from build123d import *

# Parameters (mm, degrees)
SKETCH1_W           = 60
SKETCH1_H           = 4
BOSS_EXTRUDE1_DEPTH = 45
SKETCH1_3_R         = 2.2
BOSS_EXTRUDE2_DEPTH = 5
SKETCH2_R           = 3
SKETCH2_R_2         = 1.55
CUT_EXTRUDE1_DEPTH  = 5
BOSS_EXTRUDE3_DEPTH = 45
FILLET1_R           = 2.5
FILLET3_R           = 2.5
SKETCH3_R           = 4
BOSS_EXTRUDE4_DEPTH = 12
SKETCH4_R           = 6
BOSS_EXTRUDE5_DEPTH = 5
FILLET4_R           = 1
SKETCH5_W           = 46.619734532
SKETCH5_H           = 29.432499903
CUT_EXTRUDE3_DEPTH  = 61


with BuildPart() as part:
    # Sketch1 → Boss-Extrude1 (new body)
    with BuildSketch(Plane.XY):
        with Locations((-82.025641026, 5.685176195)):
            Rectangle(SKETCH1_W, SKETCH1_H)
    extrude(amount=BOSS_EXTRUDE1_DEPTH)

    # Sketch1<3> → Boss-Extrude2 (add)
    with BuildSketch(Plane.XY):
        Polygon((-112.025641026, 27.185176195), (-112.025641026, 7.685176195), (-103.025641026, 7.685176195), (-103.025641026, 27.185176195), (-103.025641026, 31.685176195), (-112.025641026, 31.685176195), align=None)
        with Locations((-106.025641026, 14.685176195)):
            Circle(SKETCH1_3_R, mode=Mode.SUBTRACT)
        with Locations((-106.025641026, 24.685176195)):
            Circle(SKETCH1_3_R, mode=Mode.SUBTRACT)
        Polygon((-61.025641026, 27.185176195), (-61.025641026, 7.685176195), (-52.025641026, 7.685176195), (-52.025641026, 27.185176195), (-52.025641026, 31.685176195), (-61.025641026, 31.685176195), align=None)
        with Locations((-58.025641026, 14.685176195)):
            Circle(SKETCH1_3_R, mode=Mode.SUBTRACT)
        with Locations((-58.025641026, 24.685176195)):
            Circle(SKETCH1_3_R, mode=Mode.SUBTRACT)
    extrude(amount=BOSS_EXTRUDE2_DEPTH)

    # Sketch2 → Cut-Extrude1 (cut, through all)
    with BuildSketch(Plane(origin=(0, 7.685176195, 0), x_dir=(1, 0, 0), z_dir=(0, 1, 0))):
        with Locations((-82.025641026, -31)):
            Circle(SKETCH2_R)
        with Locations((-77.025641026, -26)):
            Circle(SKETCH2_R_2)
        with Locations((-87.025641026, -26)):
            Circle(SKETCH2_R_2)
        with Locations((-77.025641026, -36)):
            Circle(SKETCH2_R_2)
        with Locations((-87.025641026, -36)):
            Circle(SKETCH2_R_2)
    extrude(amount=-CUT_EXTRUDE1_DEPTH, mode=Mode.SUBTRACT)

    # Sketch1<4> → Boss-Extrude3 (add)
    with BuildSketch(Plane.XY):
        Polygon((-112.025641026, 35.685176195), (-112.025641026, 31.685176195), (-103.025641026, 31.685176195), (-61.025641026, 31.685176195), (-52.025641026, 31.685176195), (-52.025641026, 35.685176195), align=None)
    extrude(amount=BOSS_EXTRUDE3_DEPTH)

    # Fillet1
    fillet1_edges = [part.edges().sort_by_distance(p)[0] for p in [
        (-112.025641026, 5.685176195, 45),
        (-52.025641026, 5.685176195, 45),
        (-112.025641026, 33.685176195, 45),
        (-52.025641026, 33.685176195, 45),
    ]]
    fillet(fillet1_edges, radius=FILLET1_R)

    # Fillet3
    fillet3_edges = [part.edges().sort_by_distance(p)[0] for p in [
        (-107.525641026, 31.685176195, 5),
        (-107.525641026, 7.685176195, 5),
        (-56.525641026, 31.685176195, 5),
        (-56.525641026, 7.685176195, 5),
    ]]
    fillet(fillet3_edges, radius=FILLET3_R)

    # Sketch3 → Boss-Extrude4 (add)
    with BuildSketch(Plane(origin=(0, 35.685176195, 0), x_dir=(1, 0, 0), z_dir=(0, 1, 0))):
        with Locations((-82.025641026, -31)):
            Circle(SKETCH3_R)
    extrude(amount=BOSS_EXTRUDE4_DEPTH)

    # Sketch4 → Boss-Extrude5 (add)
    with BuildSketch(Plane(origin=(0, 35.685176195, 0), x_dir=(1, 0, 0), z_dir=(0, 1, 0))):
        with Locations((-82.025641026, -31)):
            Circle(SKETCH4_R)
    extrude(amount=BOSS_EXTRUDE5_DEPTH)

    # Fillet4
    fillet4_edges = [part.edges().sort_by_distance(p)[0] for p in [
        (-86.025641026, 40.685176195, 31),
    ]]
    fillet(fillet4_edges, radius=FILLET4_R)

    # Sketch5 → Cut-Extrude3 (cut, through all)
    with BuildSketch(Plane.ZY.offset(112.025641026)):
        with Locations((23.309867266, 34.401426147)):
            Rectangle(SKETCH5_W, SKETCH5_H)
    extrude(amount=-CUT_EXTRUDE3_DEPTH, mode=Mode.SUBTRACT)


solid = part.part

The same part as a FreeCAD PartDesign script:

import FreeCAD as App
import Part
import Sketcher
from FreeCAD import Vector


def edges_at(feature, points):
    """Names of the edges that pass closest to the given points."""
    edges = feature.Shape.Edges
    near = lambda p: min(range(len(edges)), key=lambda i: edges[i].distToShape(Part.Vertex(*p))[0])
    return sorted({f"Edge{near(p) + 1}" for p in points})


def add_polygon(sketch, points):
    """Adds a closed chain of lines whose ends are joined by coincident constraints."""
    first, n = sketch.GeometryCount, len(points)
    for a, b in zip(points, points[1:] + points[:1]):
        sketch.addGeometry(Part.LineSegment(App.Vector(*a, 0), App.Vector(*b, 0)), False)
    for i in range(n):
        sketch.addConstraint(Sketcher.Constraint("Coincident", first + i, 2, first + (i + 1) % n, 1))

doc = App.newDocument("Part")
body = doc.addObject("PartDesign::Body", "Body")

# Sketch on XY plane
sketch1 = doc.addObject("Sketcher::SketchObject", "Sketch")
body.addObject(sketch1)
sketch1.AttachmentSupport = (doc.XY_Plane, [""])
sketch1.MapMode = "FlatFace"
add_polygon(sketch1, [(-112.025641, 7.685176), (-112.025641, 3.685176), (-52.025641, 3.685176), (-52.025641, 7.685176)])  # lines 0-3
sketch1.addConstraint([
    Sketcher.Constraint("Vertical", 0),
    Sketcher.Constraint("Horizontal", 1),
    Sketcher.Constraint("Vertical", 2),
    Sketcher.Constraint("Horizontal", 3),
    Sketcher.Constraint("DistanceX", 1, 1, 1, 2, 60.0),
    Sketcher.Constraint("DistanceY", 0, 2, 0, 1, 4.0),
    Sketcher.Constraint("DistanceX", 0, 2, -1, 1, 112.025641),
    Sketcher.Constraint("DistanceY", -1, 1, 0, 2, 3.685176),
])
pad1 = doc.addObject("PartDesign::Pad", "Pad")
body.addObject(pad1)
pad1.Profile = sketch1
pad1.Length = 45

# Sketch on XY plane
sketch2 = doc.addObject("Sketcher::SketchObject", "Sketch001")
body.addObject(sketch2)
sketch2.AttachmentSupport = (doc.XY_Plane, [""])
sketch2.MapMode = "FlatFace"
add_polygon(sketch2, [(-112.025641, 7.685176), (-103.025641, 7.685176), (-103.025641, 31.685176), (-112.025641, 31.685176)])  # lines 0-3
sketch2.addGeometry(Part.Circle(Vector(-106.025641, 14.685176, 0), Vector(0, 0, 1), 2.2), False)  # 4
sketch2.addGeometry(Part.Circle(Vector(-106.025641, 24.685176, 0), Vector(0, 0, 1), 2.2), False)  # 5
add_polygon(sketch2, [(-61.025641, 7.685176), (-52.025641, 7.685176), (-52.025641, 31.685176), (-61.025641, 31.685176)])  # lines 6-9
sketch2.addGeometry(Part.Circle(Vector(-58.025641, 14.685176, 0), Vector(0, 0, 1), 2.2), False)  # 10
sketch2.addGeometry(Part.Circle(Vector(-58.025641, 24.685176, 0), Vector(0, 0, 1), 2.2), False)  # 11
sketch2.addConstraint([
    Sketcher.Constraint("Horizontal", 0),
    Sketcher.Constraint("Vertical", 1),
    Sketcher.Constraint("Horizontal", 2),
    Sketcher.Constraint("Vertical", 3),
    Sketcher.Constraint("Horizontal", 6),
    Sketcher.Constraint("Vertical", 7),
    Sketcher.Constraint("Horizontal", 8),
    Sketcher.Constraint("Vertical", 9),
    Sketcher.Constraint("Equal", 4, 5),
    Sketcher.Constraint("Equal", 5, 10),
    Sketcher.Constraint("Equal", 10, 11),
    Sketcher.Constraint("Horizontal", 4, 3, 10, 3),
    Sketcher.Constraint("Horizontal", 5, 3, 11, 3),
    Sketcher.Constraint("Horizontal", 3, 2, 6, 2),
    Sketcher.Constraint("Horizontal", 2, 2, 7, 2),
    Sketcher.Constraint("Vertical", 4, 3, 5, 3),
    Sketcher.Constraint("Vertical", 10, 3, 11, 3),
    Sketcher.Constraint("Equal", 2, 6),
    Sketcher.Constraint("Diameter", 4, 4.4),
    Sketcher.Constraint("DistanceX", 0, 1, 0, 2, 9.0),
    Sketcher.Constraint("DistanceY", 1, 1, 1, 2, 24.0),
    Sketcher.Constraint("DistanceY", 4, 3, 5, 3, 10.0),
    Sketcher.Constraint("DistanceX", 4, 3, 10, 3, 48.0),
    Sketcher.Constraint("DistanceX", 4, 3, 0, 2, 3.0),
    Sketcher.Constraint("DistanceY", 0, 2, 4, 3, 7.0),
    Sketcher.Constraint("DistanceX", 10, 3, 6, 2, 6.0),
    Sketcher.Constraint("DistanceX", 4, 3, -1, 1, 106.025641),
    Sketcher.Constraint("DistanceY", -1, 1, 4, 3, 14.685176),
])
pad2 = doc.addObject("PartDesign::Pad", "Pad001")
body.addObject(pad2)
pad2.Profile = sketch2
pad2.Length = 5

# Sketch on XZ plane
sketch3 = doc.addObject("Sketcher::SketchObject", "Sketch002")
body.addObject(sketch3)
sketch3.AttachmentSupport = (doc.XZ_Plane, [""])
sketch3.MapMode = "FlatFace"
sketch3.AttachmentOffset = App.Placement(Vector(0, 0, -7.685176), App.Rotation())
sketch3.addGeometry([
    Part.Circle(Vector(-82.025641, 31, 0), Vector(0, 0, 1), 3),  # 0
    Part.Circle(Vector(-77.025641, 26, 0), Vector(0, 0, 1), 1.55),  # 1
    Part.Circle(Vector(-87.025641, 26, 0), Vector(0, 0, 1), 1.55),  # 2
    Part.Circle(Vector(-77.025641, 36, 0), Vector(0, 0, 1), 1.55),  # 3
    Part.Circle(Vector(-87.025641, 36, 0), Vector(0, 0, 1), 1.55),  # 4
], False)
sketch3.addConstraint([
    Sketcher.Constraint("Equal", 1, 2),
    Sketcher.Constraint("Equal", 2, 3),
    Sketcher.Constraint("Equal", 3, 4),
    Sketcher.Constraint("Horizontal", 1, 3, 2, 3),
    Sketcher.Constraint("Horizontal", 3, 3, 4, 3),
    Sketcher.Constraint("Vertical", 1, 3, 3, 3),
    Sketcher.Constraint("Vertical", 2, 3, 4, 3),
    Sketcher.Constraint("Diameter", 0, 6.0),
    Sketcher.Constraint("Diameter", 1, 3.1),
    Sketcher.Constraint("DistanceY", -1, 1, 0, 3, 31.0),
    Sketcher.Constraint("DistanceY", -1, 1, 1, 3, 26.0),
    Sketcher.Constraint("DistanceY", -1, 1, 3, 3, 36.0),
    Sketcher.Constraint("DistanceX", 0, 3, 1, 3, 5.0),
    Sketcher.Constraint("DistanceX", 2, 3, 0, 3, 5.0),
    Sketcher.Constraint("DistanceX", 0, 3, -1, 1, 82.025641),
])
pocket1 = doc.addObject("PartDesign::Pocket", "Pocket")
body.addObject(pocket1)
pocket1.Profile = sketch3
pocket1.Type = "ThroughAll"
pocket1.Reversed = True

# Sketch on XY plane
sketch4 = doc.addObject("Sketcher::SketchObject", "Sketch003")
body.addObject(sketch4)
sketch4.AttachmentSupport = (doc.XY_Plane, [""])
sketch4.MapMode = "FlatFace"
add_polygon(sketch4, [(-112.025641, 35.685176), (-112.025641, 31.685176), (-52.025641, 31.685176), (-52.025641, 35.685176)])  # lines 0-3
sketch4.addConstraint([
    Sketcher.Constraint("Vertical", 0),
    Sketcher.Constraint("Horizontal", 1),
    Sketcher.Constraint("Vertical", 2),
    Sketcher.Constraint("Horizontal", 3),
    Sketcher.Constraint("DistanceX", 1, 1, 1, 2, 60.0),
    Sketcher.Constraint("DistanceY", 0, 2, 0, 1, 4.0),
    Sketcher.Constraint("DistanceX", 0, 2, -1, 1, 112.025641),
    Sketcher.Constraint("DistanceY", -1, 1, 0, 2, 31.685176),
])
pad3 = doc.addObject("PartDesign::Pad", "Pad002")
body.addObject(pad3)
pad3.Profile = sketch4
pad3.Length = 45
doc.recompute()

fillet = doc.addObject("PartDesign::Fillet", "Fillet")
body.addObject(fillet)
fillet.Base = (pad3, edges_at(pad3, [
    (-112.026, 5.685, 45),
    (-52.026, 5.685, 45),
    (-112.026, 33.685, 45),
    (-52.026, 33.685, 45),
]))
fillet.Radius = 2.5
doc.recompute()

fillet2 = doc.addObject("PartDesign::Fillet", "Fillet001")
body.addObject(fillet2)
fillet2.Base = (fillet, edges_at(fillet, [
    (-107.526, 31.685, 5),
    (-107.526, 7.685, 5),
    (-56.526, 31.685, 5),
    (-56.526, 7.685, 5),
]))
fillet2.Radius = 2.5

# Sketch on XZ plane
sketch5 = doc.addObject("Sketcher::SketchObject", "Sketch004")
body.addObject(sketch5)
sketch5.AttachmentSupport = (doc.XZ_Plane, [""])
sketch5.MapMode = "FlatFace"
sketch5.AttachmentOffset = App.Placement(Vector(0, 0, -35.685176), App.Rotation())
sketch5.addGeometry(Part.Circle(Vector(-82.025641, 31, 0), Vector(0, 0, 1), 4), False)
sketch5.addConstraint([
    Sketcher.Constraint("Diameter", 0, 8.0),
    Sketcher.Constraint("DistanceY", -1, 1, 0, 3, 31.0),
    Sketcher.Constraint("DistanceX", 0, 3, -1, 1, 82.025641),
])
pad4 = doc.addObject("PartDesign::Pad", "Pad003")
body.addObject(pad4)
pad4.Profile = sketch5
pad4.Length = 12
pad4.Reversed = True

# Sketch on XZ plane
sketch6 = doc.addObject("Sketcher::SketchObject", "Sketch005")
body.addObject(sketch6)
sketch6.AttachmentSupport = (doc.XZ_Plane, [""])
sketch6.MapMode = "FlatFace"
sketch6.AttachmentOffset = App.Placement(Vector(0, 0, -35.685176), App.Rotation())
sketch6.addGeometry(Part.Circle(Vector(-82.025641, 31, 0), Vector(0, 0, 1), 6), False)
sketch6.addConstraint([
    Sketcher.Constraint("Diameter", 0, 12.0),
    Sketcher.Constraint("DistanceY", -1, 1, 0, 3, 31.0),
    Sketcher.Constraint("DistanceX", 0, 3, -1, 1, 82.025641),
])
pad5 = doc.addObject("PartDesign::Pad", "Pad004")
body.addObject(pad5)
pad5.Profile = sketch6
pad5.Length = 5
pad5.Reversed = True
doc.recompute()

fillet3 = doc.addObject("PartDesign::Fillet", "Fillet002")
body.addObject(fillet3)
fillet3.Base = (pad5, edges_at(pad5, [(-86.026, 40.685, 31)]))
fillet3.Radius = 1

# Sketch on YZ plane
sketch7 = doc.addObject("Sketcher::SketchObject", "Sketch006")
body.addObject(sketch7)
sketch7.AttachmentSupport = (doc.YZ_Plane, [""])
sketch7.MapMode = "FlatFace"
sketch7.AttachmentOffset = App.Placement(Vector(0, 0, -112.025641), App.Rotation())
add_polygon(sketch7, [(49.117676, 0), (19.685176, 0), (19.685176, 46.619735), (49.117676, 46.619735)])  # lines 0-3
sketch7.addConstraint([
    Sketcher.Constraint("Horizontal", 0),
    Sketcher.Constraint("Vertical", 1),
    Sketcher.Constraint("Horizontal", 2),
    Sketcher.Constraint("Vertical", 3),
    Sketcher.Constraint("PointOnObject", 0, 2, -1),
    Sketcher.Constraint("DistanceX", 0, 2, 0, 1, 29.4325),
    Sketcher.Constraint("DistanceY", 1, 1, 1, 2, 46.619735),
    Sketcher.Constraint("DistanceX", -1, 1, 0, 2, 19.685176),
])
pocket2 = doc.addObject("PartDesign::Pocket", "Pocket001")
body.addObject(pocket2)
pocket2.Profile = sketch7
pocket2.Type = "ThroughAll"
pocket2.Reversed = True

doc.recompute()
